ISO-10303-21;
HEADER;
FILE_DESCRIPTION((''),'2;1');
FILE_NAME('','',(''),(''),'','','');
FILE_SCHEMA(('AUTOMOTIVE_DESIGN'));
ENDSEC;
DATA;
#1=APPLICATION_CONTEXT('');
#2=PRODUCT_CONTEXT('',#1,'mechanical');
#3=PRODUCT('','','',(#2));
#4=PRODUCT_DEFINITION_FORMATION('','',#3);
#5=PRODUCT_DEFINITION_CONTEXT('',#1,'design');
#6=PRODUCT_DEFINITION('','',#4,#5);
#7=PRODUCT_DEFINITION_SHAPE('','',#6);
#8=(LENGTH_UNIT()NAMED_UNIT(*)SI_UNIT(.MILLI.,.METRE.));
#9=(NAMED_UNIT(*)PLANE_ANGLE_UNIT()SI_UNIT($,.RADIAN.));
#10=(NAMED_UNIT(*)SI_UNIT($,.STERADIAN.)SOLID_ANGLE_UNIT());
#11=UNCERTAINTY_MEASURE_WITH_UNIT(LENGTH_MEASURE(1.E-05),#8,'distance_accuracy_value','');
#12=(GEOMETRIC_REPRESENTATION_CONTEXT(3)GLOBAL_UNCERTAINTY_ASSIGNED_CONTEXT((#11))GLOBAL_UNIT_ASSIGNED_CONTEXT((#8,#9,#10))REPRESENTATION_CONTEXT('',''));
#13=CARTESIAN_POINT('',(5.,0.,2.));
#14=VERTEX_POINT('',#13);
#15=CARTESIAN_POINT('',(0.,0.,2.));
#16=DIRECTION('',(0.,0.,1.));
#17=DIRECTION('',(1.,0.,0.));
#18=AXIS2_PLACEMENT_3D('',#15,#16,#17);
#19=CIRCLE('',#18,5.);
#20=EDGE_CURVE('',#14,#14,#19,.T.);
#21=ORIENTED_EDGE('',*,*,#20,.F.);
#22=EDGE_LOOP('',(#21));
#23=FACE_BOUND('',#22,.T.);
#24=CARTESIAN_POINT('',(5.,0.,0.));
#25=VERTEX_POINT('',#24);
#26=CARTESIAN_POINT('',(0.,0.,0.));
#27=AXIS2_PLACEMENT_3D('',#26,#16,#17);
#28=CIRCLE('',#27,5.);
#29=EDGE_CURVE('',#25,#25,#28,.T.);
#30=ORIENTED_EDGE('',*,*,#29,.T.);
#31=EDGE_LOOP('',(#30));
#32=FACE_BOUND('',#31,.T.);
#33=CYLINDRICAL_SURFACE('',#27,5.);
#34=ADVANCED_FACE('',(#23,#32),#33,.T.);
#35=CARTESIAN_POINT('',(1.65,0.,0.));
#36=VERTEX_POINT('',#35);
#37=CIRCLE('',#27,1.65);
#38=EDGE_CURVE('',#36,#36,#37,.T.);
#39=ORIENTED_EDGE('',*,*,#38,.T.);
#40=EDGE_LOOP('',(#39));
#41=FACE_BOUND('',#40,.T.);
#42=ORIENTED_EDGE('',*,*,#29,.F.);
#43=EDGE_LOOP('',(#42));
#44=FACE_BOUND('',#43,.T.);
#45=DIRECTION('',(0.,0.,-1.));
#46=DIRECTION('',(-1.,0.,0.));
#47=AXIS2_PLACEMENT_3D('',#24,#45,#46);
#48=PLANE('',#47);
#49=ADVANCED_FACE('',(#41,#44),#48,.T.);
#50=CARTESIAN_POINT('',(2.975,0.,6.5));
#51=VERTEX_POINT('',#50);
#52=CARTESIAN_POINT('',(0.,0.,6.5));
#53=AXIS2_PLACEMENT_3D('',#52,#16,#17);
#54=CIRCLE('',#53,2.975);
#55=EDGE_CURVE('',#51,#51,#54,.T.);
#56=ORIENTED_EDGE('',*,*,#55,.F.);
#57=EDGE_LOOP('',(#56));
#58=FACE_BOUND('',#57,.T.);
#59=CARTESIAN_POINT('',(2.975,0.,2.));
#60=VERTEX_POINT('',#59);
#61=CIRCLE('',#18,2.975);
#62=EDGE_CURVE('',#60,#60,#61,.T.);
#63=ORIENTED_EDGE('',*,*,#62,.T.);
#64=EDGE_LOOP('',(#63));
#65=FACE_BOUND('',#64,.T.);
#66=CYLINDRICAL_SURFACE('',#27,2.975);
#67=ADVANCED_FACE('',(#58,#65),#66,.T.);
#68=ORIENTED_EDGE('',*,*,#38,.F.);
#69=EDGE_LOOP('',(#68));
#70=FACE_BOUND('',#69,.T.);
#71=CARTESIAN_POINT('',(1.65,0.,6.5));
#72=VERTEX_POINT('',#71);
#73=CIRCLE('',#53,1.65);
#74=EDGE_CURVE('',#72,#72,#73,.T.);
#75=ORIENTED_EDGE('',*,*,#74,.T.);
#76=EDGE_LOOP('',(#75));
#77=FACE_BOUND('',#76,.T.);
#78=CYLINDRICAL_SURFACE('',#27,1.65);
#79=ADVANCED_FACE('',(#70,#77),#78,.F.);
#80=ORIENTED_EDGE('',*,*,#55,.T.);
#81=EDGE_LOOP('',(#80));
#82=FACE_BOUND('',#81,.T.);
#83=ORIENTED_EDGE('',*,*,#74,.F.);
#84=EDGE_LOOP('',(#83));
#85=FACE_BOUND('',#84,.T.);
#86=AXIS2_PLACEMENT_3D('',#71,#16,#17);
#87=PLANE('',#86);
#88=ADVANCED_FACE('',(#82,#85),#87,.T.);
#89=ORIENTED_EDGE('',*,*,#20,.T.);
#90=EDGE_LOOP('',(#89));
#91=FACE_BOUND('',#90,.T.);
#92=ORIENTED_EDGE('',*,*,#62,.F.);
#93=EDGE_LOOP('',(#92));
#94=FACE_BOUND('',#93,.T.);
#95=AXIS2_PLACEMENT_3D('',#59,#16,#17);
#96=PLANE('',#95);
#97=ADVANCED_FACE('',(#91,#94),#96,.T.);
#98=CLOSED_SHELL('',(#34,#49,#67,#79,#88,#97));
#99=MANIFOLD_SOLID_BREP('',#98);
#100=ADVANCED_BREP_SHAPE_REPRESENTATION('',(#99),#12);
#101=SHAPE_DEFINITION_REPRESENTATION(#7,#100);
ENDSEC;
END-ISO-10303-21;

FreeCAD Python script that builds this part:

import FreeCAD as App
import Part
import Sketcher
Q = App.Units.Quantity

doc = App.newDocument("Part")
body = doc.addObject("PartDesign::Body", "Body")

sketch1 = body.newObject("Sketcher::SketchObject", "Sketch")
sketch1.AttachmentSupport = (doc.getObject("XZ_Plane"), [""])
sketch1.MapMode = "FlatFace"
sketch1.addGeometry(Part.LineSegment(App.Vector(5, 2, 0), App.Vector(5, 0, 0)), False)
sketch1.addGeometry(Part.LineSegment(App.Vector(5, 0, 0), App.Vector(1.6, 0, 0)), False)
sketch1.addGeometry(Part.LineSegment(App.Vector(1.6, 0, 0), App.Vector(1.6, 6.5, 0)), False)
sketch1.addGeometry(Part.LineSegment(App.Vector(1.6, 6.5, 0), App.Vector(3, 6.5, 0)), False)
sketch1.addGeometry(Part.LineSegment(App.Vector(3, 6.5, 0), App.Vector(3, 2, 0)), False)
sketch1.addGeometry(Part.LineSegment(App.Vector(3, 2, 0), App.Vector(5, 2, 0)), False)
sketch1.addConstraint(Sketcher.Constraint("Coincident", 0, 2, 1, 1))
sketch1.addConstraint(Sketcher.Constraint("Coincident", 1, 2, 2, 1))
sketch1.addConstraint(Sketcher.Constraint("Coincident", 2, 2, 3, 1))
sketch1.addConstraint(Sketcher.Constraint("Coincident", 3, 2, 4, 1))
sketch1.addConstraint(Sketcher.Constraint("Coincident", 4, 2, 5, 1))
sketch1.addConstraint(Sketcher.Constraint("Coincident", 5, 2, 0, 1))
sketch1.addConstraint(Sketcher.Constraint("Vertical", 0))
sketch1.addConstraint(Sketcher.Constraint("Horizontal", 1))
sketch1.addConstraint(Sketcher.Constraint("Vertical", 2))
sketch1.addConstraint(Sketcher.Constraint("Horizontal", 3))
sketch1.addConstraint(Sketcher.Constraint("Vertical", 4))
sketch1.addConstraint(Sketcher.Constraint("Horizontal", 5))
sketch1.addConstraint(Sketcher.Constraint("PointOnObject", 0, 2, -1))
sketch1.addConstraint(Sketcher.Constraint("DistanceY", 0, 2, 0, 1, Q("2 mm")))
sketch1.addConstraint(Sketcher.Constraint("DistanceY", 2, 1, 2, 2, Q("6.5 mm")))
sketch1.addConstraint(Sketcher.Constraint("DistanceX", -1, 1, 0, 2, Q("5 mm")))
sketch1.addConstraint(Sketcher.Constraint("DistanceX", 1, 2, 1, 1, Q("3.35 mm")))
sketch1.addConstraint(Sketcher.Constraint("DistanceX", 3, 1, 3, 2, Q("1.325 mm")))
revolution = body.newObject("PartDesign::Revolution", "Revolution")
revolution.Profile = sketch1
revolution.ReferenceAxis = (sketch1, ["V_Axis"])
revolution.Angle = 360

doc.recompute()
